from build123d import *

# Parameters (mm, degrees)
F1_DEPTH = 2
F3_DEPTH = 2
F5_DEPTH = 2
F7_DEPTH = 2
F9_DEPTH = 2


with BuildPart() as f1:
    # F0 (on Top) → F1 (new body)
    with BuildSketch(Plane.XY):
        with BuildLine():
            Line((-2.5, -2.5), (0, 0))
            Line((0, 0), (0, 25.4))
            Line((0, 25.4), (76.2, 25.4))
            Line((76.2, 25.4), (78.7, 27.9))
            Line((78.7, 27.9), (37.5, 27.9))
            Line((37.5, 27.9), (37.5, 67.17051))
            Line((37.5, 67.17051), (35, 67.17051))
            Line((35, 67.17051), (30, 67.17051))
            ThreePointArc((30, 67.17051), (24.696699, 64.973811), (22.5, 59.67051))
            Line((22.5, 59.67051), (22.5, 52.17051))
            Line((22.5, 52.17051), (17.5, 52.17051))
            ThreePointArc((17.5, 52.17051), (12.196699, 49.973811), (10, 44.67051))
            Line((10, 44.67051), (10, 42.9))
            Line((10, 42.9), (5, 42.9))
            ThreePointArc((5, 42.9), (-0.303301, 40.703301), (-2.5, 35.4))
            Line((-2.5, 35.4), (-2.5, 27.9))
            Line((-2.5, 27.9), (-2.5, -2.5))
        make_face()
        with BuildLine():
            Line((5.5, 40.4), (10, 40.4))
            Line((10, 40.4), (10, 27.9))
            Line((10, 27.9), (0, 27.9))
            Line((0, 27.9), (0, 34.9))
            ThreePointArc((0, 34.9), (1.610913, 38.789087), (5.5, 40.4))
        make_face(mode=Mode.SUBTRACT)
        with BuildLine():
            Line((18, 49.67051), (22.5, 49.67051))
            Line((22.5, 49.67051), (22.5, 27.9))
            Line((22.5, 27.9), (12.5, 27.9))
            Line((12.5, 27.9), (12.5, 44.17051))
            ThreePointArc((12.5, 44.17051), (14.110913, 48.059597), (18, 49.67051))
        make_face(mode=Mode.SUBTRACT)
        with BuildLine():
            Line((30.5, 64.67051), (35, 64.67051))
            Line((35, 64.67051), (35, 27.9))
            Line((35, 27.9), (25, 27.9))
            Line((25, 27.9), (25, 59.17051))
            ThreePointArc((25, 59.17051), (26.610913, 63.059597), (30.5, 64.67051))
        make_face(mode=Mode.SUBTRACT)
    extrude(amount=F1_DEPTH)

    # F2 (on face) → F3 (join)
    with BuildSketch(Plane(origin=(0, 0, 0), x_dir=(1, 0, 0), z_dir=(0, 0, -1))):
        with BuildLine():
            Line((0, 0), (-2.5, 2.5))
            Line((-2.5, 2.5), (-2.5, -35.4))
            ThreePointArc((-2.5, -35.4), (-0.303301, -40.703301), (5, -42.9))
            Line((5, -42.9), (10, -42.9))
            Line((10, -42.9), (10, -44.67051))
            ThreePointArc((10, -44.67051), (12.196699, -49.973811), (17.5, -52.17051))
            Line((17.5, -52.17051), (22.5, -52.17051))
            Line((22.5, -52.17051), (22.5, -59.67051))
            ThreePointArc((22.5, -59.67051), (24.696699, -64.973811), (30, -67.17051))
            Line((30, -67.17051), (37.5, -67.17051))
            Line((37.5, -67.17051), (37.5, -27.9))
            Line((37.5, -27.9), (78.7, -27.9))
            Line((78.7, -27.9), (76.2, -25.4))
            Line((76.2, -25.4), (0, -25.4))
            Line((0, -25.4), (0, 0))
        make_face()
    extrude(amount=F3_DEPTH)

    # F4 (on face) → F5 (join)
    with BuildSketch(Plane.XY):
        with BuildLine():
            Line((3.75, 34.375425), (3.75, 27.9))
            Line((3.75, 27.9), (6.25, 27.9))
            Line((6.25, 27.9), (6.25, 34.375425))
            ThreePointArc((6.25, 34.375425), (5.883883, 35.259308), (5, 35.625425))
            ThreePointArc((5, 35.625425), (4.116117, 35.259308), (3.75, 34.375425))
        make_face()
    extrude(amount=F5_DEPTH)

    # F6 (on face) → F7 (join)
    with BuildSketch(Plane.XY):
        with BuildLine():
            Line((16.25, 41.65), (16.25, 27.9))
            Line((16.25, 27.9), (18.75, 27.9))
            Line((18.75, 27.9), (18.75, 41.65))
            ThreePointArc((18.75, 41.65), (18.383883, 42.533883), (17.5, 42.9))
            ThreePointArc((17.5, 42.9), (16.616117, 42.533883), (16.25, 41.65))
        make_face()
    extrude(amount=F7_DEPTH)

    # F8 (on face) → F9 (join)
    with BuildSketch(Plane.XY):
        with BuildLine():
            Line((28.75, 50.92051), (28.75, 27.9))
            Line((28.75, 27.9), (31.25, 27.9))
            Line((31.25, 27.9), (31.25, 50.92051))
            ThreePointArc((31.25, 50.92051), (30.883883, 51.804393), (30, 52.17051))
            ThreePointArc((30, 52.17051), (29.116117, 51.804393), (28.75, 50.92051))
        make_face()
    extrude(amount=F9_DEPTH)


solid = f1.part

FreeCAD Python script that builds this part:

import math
import FreeCAD as App
import Part
import Sketcher
from FreeCAD import Vector
Q = App.Units.Quantity

doc = App.newDocument("Part")
body = doc.addObject("PartDesign::Body", "Body")

# Sketch on XY plane
sketch1 = doc.addObject("Sketcher::SketchObject", "Sketch")
body.addObject(sketch1)
sketch1.AttachmentSupport = (doc.XY_Plane, [""])
sketch1.MapMode = "FlatFace"
sketch1.addGeometry(Part.LineSegment(Vector(-2.5, -2.5, 0), Vector(0, 0, 0)), False)
sketch1.addGeometry(Part.LineSegment(Vector(0, 0, 0), Vector(0, 25.4, 0)), False)
sketch1.addGeometry(Part.LineSegment(Vector(0, 25.4, 0), Vector(76.2, 25.4, 0)), False)
sketch1.addGeometry(Part.LineSegment(Vector(76.2, 25.4, 0), Vector(78.7, 27.9, 0)), False)
sketch1.addGeometry(Part.LineSegment(Vector(78.7, 27.9, 0), Vector(37.5, 27.9, 0)), False)
sketch1.addGeometry(Part.LineSegment(Vector(37.5, 27.9, 0), Vector(37.5, 67.2, 0)), False)
sketch1.addGeometry(Part.LineSegment(Vector(37.5, 67.2, 0), Vector(30, 67.2, 0)), False)
sketch1.addGeometry(Part.ArcOfCircle(Part.Circle(Vector(30, 59.7, 0), Vector(0, 0, 1), 7.5), math.radians(90), math.radians(180)), False)
sketch1.addGeometry(Part.LineSegment(Vector(22.5, 59.7, 0), Vector(22.5, 52.2, 0)), False)
sketch1.addGeometry(Part.LineSegment(Vector(22.5, 52.2, 0), Vector(17.5, 52.2, 0)), False)
sketch1.addGeometry(Part.ArcOfCircle(Part.Circle(Vector(17.5, 44.7, 0), Vector(0, 0, 1), 7.5), math.radians(90), math.radians(180)), False)
sketch1.addGeometry(Part.LineSegment(Vector(10, 44.7, 0), Vector(10, 42.9, 0)), False)
sketch1.addGeometry(Part.LineSegment(Vector(10, 42.9, 0), Vector(5, 42.9, 0)), False)
sketch1.addGeometry(Part.ArcOfCircle(Part.Circle(Vector(5, 35.4, 0), Vector(0, 0, 1), 7.5), math.radians(90), math.radians(180)), False)
sketch1.addGeometry(Part.LineSegment(Vector(-2.5, 35.4, 0), Vector(-2.5, -2.5, 0)), False)
sketch1.addGeometry(Part.ArcOfCircle(Part.Circle(Vector(5.5, 34.9, 0), Vector(0, 0, 1), 5.5), math.radians(90), math.radians(180)), False)
sketch1.addGeometry(Part.LineSegment(Vector(5.5, 40.4, 0), Vector(10, 40.4, 0)), False)
sketch1.addGeometry(Part.LineSegment(Vector(10, 40.4, 0), Vector(10, 27.9, 0)), False)
sketch1.addGeometry(Part.LineSegment(Vector(10, 27.9, 0), Vector(0, 27.9, 0)), False)
sketch1.addGeometry(Part.LineSegment(Vector(0, 27.9, 0), Vector(0, 34.9, 0)), False)
sketch1.addGeometry(Part.ArcOfCircle(Part.Circle(Vector(18, 44.2, 0), Vector(0, 0, 1), 5.5), math.radians(90), math.radians(180)), False)
sketch1.addGeometry(Part.LineSegment(Vector(18, 49.7, 0), Vector(22.5, 49.7, 0)), False)
sketch1.addGeometry(Part.LineSegment(Vector(22.5, 49.7, 0), Vector(22.5, 27.9, 0)), False)
sketch1.addGeometry(Part.LineSegment(Vector(22.5, 27.9, 0), Vector(12.5, 27.9, 0)), False)
sketch1.addGeometry(Part.LineSegment(Vector(12.5, 27.9, 0), Vector(12.5, 44.2, 0)), False)
sketch1.addGeometry(Part.ArcOfCircle(Part.Circle(Vector(30.5, 59.2, 0), Vector(0, 0, 1), 5.5), math.radians(90), math.radians(180)), False)
sketch1.addGeometry(Part.LineSegment(Vector(30.5, 64.7, 0), Vector(35, 64.7, 0)), False)
sketch1.addGeometry(Part.LineSegment(Vector(35, 64.7, 0), Vector(35, 27.9, 0)), False)
sketch1.addGeometry(Part.LineSegment(Vector(35, 27.9, 0), Vector(25, 27.9, 0)), False)
sketch1.addGeometry(Part.LineSegment(Vector(25, 27.9, 0), Vector(25, 59.2, 0)), False)
sketch1.addConstraint(Sketcher.Constraint("Coincident", 0, 2, 1, 1))
sketch1.addConstraint(Sketcher.Constraint("Coincident", 1, 2, 2, 1))
sketch1.addConstraint(Sketcher.Constraint("Coincident", 2, 2, 3, 1))
sketch1.addConstraint(Sketcher.Constraint("Coincident", 3, 2, 4, 1))
sketch1.addConstraint(Sketcher.Constraint("Coincident", 4, 2, 5, 1))
sketch1.addConstraint(Sketcher.Constraint("Coincident", 5, 2, 6, 1))
sketch1.addConstraint(Sketcher.Constraint("Tangent", 6, 2, 7, 1))
sketch1.addConstraint(Sketcher.Constraint("Tangent", 7, 2, 8, 1))
sketch1.addConstraint(Sketcher.Constraint("Coincident", 8, 2, 9, 1))
sketch1.addConstraint(Sketcher.Constraint("Tangent", 9, 2, 10, 1))
sketch1.addConstraint(Sketcher.Constraint("Tangent", 10, 2, 11, 1))
sketch1.addConstraint(Sketcher.Constraint("Coincident", 11, 2, 12, 1))
sketch1.addConstraint(Sketcher.Constraint("Tangent", 12, 2, 13, 1))
sketch1.addConstraint(Sketcher.Constraint("Tangent", 13, 2, 14, 1))
sketch1.addConstraint(Sketcher.Constraint("Coincident", 14, 2, 0, 1))
sketch1.addConstraint(Sketcher.Constraint("Tangent", 15, 1, 16, 1))
sketch1.addConstraint(Sketcher.Constraint("Coincident", 16, 2, 17, 1))
sketch1.addConstraint(Sketcher.Constraint("Coincident", 17, 2, 18, 1))
sketch1.addConstraint(Sketcher.Constraint("Coincident", 18, 2, 19, 1))
sketch1.addConstraint(Sketcher.Constraint("Tangent", 19, 2, 15, 2))
sketch1.addConstraint(Sketcher.Constraint("Tangent", 20, 1, 21, 1))
sketch1.addConstraint(Sketcher.Constraint("Coincident", 21, 2, 22, 1))
sketch1.addConstraint(Sketcher.Constraint("Coincident", 22, 2, 23, 1))
sketch1.addConstraint(Sketcher.Constraint("Coincident", 23, 2, 24, 1))
sketch1.addConstraint(Sketcher.Constraint("Tangent", 24, 2, 20, 2))
sketch1.addConstraint(Sketcher.Constraint("Tangent", 25, 1, 26, 1))
sketch1.addConstraint(Sketcher.Constraint("Coincident", 26, 2, 27, 1))
sketch1.addConstraint(Sketcher.Constraint("Coincident", 27, 2, 28, 1))
sketch1.addConstraint(Sketcher.Constraint("Coincident", 28, 2, 29, 1))
sketch1.addConstraint(Sketcher.Constraint("Tangent", 29, 2, 25, 2))
sketch1.addConstraint(Sketcher.Constraint("Vertical", 1))
sketch1.addConstraint(Sketcher.Constraint("Horizontal", 2))
sketch1.addConstraint(Sketcher.Constraint("Horizontal", 4))
sketch1.addConstraint(Sketcher.Constraint("Vertical", 5))
sketch1.addConstraint(Sketcher.Constraint("Horizontal", 6))
sketch1.addConstraint(Sketcher.Constraint("Vertical", 8))
sketch1.addConstraint(Sketcher.Constraint("Horizontal", 9))
sketch1.addConstraint(Sketcher.Constraint("Vertical", 11))
sketch1.addConstraint(Sketcher.Constraint("Horizontal", 12))
sketch1.addConstraint(Sketcher.Constraint("Vertical", 14))
sketch1.addConstraint(Sketcher.Constraint("Horizontal", 16))
sketch1.addConstraint(Sketcher.Constraint("Vertical", 17))
sketch1.addConstraint(Sketcher.Constraint("Horizontal", 18))
sketch1.addConstraint(Sketcher.Constraint("Vertical", 19))
sketch1.addConstraint(Sketcher.Constraint("Horizontal", 21))
sketch1.addConstraint(Sketcher.Constraint("Vertical", 22))
sketch1.addConstraint(Sketcher.Constraint("Horizontal", 23))
sketch1.addConstraint(Sketcher.Constraint("Vertical", 24))
sketch1.addConstraint(Sketcher.Constraint("Horizontal", 26))
sketch1.addConstraint(Sketcher.Constraint("Vertical", 27))
sketch1.addConstraint(Sketcher.Constraint("Horizontal", 28))
sketch1.addConstraint(Sketcher.Constraint("Vertical", 29))
sketch1.addConstraint(Sketcher.Constraint("Coincident", 0, 2, -1, 1))
sketch1.addConstraint(Sketcher.Constraint("Equal", 7, 10))
sketch1.addConstraint(Sketcher.Constraint("Equal", 10, 13))
sketch1.addConstraint(Sketcher.Constraint("Equal", 15, 20))
sketch1.addConstraint(Sketcher.Constraint("Equal", 20, 25))
sketch1.addConstraint(Sketcher.Constraint("PointOnObject", 18, 2, -2))
sketch1.addConstraint(Sketcher.Constraint("Parallel", 0, 3))
sketch1.addConstraint(Sketcher.Constraint("Horizontal", 4, 2, 17, 2))
sketch1.addConstraint(Sketcher.Constraint("Horizontal", 18, 2, 22, 2))
sketch1.addConstraint(Sketcher.Constraint("Horizontal", 23, 2, 27, 2))
sketch1.addConstraint(Sketcher.Constraint("Vertical", 11, 2, 16, 2))
sketch1.addConstraint(Sketcher.Constraint("Vertical", 8, 2, 21, 2))
sketch1.addConstraint(Sketcher.Constraint("Equal", 9, 12))
sketch1.addConstraint(Sketcher.Constraint("Equal", 16, 21))
sketch1.addConstraint(Sketcher.Constraint("Equal", 21, 26))
sketch1.addConstraint(Sketcher.Constraint("Equal", 6, 8))
sketch1.addConstraint(Sketcher.Constraint("Equal", 0, 3))
sketch1.addConstraint(Sketcher.Constraint("Radius", 7, 7.5))
sketch1.addConstraint(Sketcher.Constraint("Radius", 15, 5.500001))
sketch1.addConstraint(Sketcher.Constraint("DistanceX", 9, 2, 9, 1, 5.0))
sketch1.addConstraint(Sketcher.Constraint("DistanceX", 18, 2, 18, 1, 10.0))
sketch1.addConstraint(Sketcher.Constraint("DistanceY", 19, 1, 19, 2, 7.0))
sketch1.addConstraint(Sketcher.Constraint("Angle", 0, Q("45 deg")))
sketch1.addConstraint(Sketcher.Constraint("DistanceX", 2, 1, 2, 2, 76.2))
sketch1.addConstraint(Sketcher.Constraint("DistanceX", 4, 2, 4, 1, 41.2))
sketch1.addConstraint(Sketcher.Constraint("DistanceY", 1, 1, 1, 2, 25.4))
sketch1.addConstraint(Sketcher.Constraint("DistanceY", 14, 2, 14, 1, 37.9))
sketch1.addConstraint(Sketcher.Constraint("DistanceX", -1, 1, 26, 2, 35.0))
sketch1.addConstraint(Sketcher.Constraint("DistanceY", 20, 3, 25, 3, 15.0))
sketch1.addConstraint(Sketcher.Constraint("DistanceY", 25, 3, 5, 2, 8.000001))
sketch1.addConstraint(Sketcher.Constraint("DistanceY", 5, 1, 5, 2, 39.27051))
pad1 = doc.addObject("PartDesign::Pad", "Pad")
body.addObject(pad1)
pad1.Profile = sketch1
pad1.Length = 2

# Sketch on XY plane
sketch2 = doc.addObject("Sketcher::SketchObject", "Sketch001")
body.addObject(sketch2)
sketch2.AttachmentSupport = (doc.XY_Plane, [""])
sketch2.MapMode = "FlatFace"
sketch2.addGeometry(Part.LineSegment(Vector(0, 0, 0), Vector(-2.5, -2.5, 0)), False)
sketch2.addGeometry(Part.LineSegment(Vector(-2.5, -2.5, 0), Vector(-2.5, 35.4, 0)), False)
sketch2.addGeometry(Part.ArcOfCircle(Part.Circle(Vector(5, 35.4, 0), Vector(0, 0, 1), 7.5), math.radians(90), math.radians(180)), False)
sketch2.addGeometry(Part.LineSegment(Vector(5, 42.9, 0), Vector(10, 42.9, 0)), False)
sketch2.addGeometry(Part.LineSegment(Vector(10, 42.9, 0), Vector(10, 44.7, 0)), False)
sketch2.addGeometry(Part.ArcOfCircle(Part.Circle(Vector(17.5, 44.7, 0), Vector(0, 0, 1), 7.5), math.radians(90), math.radians(180)), False)
sketch2.addGeometry(Part.LineSegment(Vector(17.5, 52.2, 0), Vector(22.5, 52.2, 0)), False)
sketch2.addGeometry(Part.LineSegment(Vector(22.5, 52.2, 0), Vector(22.5, 59.7, 0)), False)
sketch2.addGeometry(Part.ArcOfCircle(Part.Circle(Vector(30, 59.7, 0), Vector(0, 0, 1), 7.5), math.radians(90), math.radians(180)), False)
sketch2.addGeometry(Part.LineSegment(Vector(30, 67.2, 0), Vector(37.5, 67.2, 0)), False)
sketch2.addGeometry(Part.LineSegment(Vector(37.5, 67.2, 0), Vector(37.5, 27.9, 0)), False)
sketch2.addGeometry(Part.LineSegment(Vector(37.5, 27.9, 0), Vector(78.7, 27.9, 0)), False)
sketch2.addGeometry(Part.LineSegment(Vector(78.7, 27.9, 0), Vector(76.2, 25.4, 0)), False)
sketch2.addGeometry(Part.LineSegment(Vector(76.2, 25.4, 0), Vector(0, 25.4, 0)), False)
sketch2.addGeometry(Part.LineSegment(Vector(0, 25.4, 0), Vector(0, 0, 0)), False)
sketch2.addConstraint(Sketcher.Constraint("Coincident", 0, 2, 1, 1))
sketch2.addConstraint(Sketcher.Constraint("Tangent", 1, 2, 2, 2))
sketch2.addConstraint(Sketcher.Constraint("Tangent", 2, 1, 3, 1))
sketch2.addConstraint(Sketcher.Constraint("Coincident", 3, 2, 4, 1))
sketch2.addConstraint(Sketcher.Constraint("Tangent", 4, 2, 5, 2))
sketch2.addConstraint(Sketcher.Constraint("Tangent", 5, 1, 6, 1))
sketch2.addConstraint(Sketcher.Constraint("Coincident", 6, 2, 7, 1))
sketch2.addConstraint(Sketcher.Constraint("Tangent", 7, 2, 8, 2))
sketch2.addConstraint(Sketcher.Constraint("Tangent", 8, 1, 9, 1))
sketch2.addConstraint(Sketcher.Constraint("Coincident", 9, 2, 10, 1))
sketch2.addConstraint(Sketcher.Constraint("Coincident", 10, 2, 11, 1))
sketch2.addConstraint(Sketcher.Constraint("Coincident", 11, 2, 12, 1))
sketch2.addConstraint(Sketcher.Constraint("Coincident", 12, 2, 13, 1))
sketch2.addConstraint(Sketcher.Constraint("Coincident", 13, 2, 14, 1))
sketch2.addConstraint(Sketcher.Constraint("Coincident", 14, 2, 0, 1))
sketch2.addConstraint(Sketcher.Constraint("Vertical", 1))
sketch2.addConstraint(Sketcher.Constraint("Horizontal", 3))
sketch2.addConstraint(Sketcher.Constraint("Vertical", 4))
sketch2.addConstraint(Sketcher.Constraint("Horizontal", 6))
sketch2.addConstraint(Sketcher.Constraint("Vertical", 7))
sketch2.addConstraint(Sketcher.Constraint("Horizontal", 9))
sketch2.addConstraint(Sketcher.Constraint("Vertical", 10))
sketch2.addConstraint(Sketcher.Constraint("Horizontal", 11))
sketch2.addConstraint(Sketcher.Constraint("Horizontal", 13))
sketch2.addConstraint(Sketcher.Constraint("Vertical", 14))
sketch2.addConstraint(Sketcher.Constraint("Coincident", 14, 2, -1, 1))
sketch2.addConstraint(Sketcher.Constraint("Equal", 2, 5))
sketch2.addConstraint(Sketcher.Constraint("Equal", 5, 8))
sketch2.addConstraint(Sketcher.Constraint("Parallel", 0, 12))
sketch2.addConstraint(Sketcher.Constraint("Equal", 3, 6))
sketch2.addConstraint(Sketcher.Constraint("Equal", 9, 7))
sketch2.addConstraint(Sketcher.Constraint("Equal", 0, 12))
sketch2.addConstraint(Sketcher.Constraint("Radius", 2, 7.5))
sketch2.addConstraint(Sketcher.Constraint("DistanceX", 3, 1, 3, 2, 5.0))
sketch2.addConstraint(Sketcher.Constraint("Angle", 0, Q("-135 deg")))
sketch2.addConstraint(Sketcher.Constraint("DistanceX", 9, 1, 9, 2, 7.5))
sketch2.addConstraint(Sketcher.Constraint("DistanceX", 11, 1, 11, 2, 41.2))
sketch2.addConstraint(Sketcher.Constraint("DistanceX", 13, 2, 13, 1, 76.2))
sketch2.addConstraint(Sketcher.Constraint("DistanceY", 1, 1, 1, 2, 37.9))
sketch2.addConstraint(Sketcher.Constraint("DistanceY", 14, 2, 14, 1, 25.4))
sketch2.addConstraint(Sketcher.Constraint("DistanceY", 4, 1, 4, 2, 1.77051))
pad2 = doc.addObject("PartDesign::Pad", "Pad001")
body.addObject(pad2)
pad2.Profile = sketch2
pad2.Length = 2
pad2.Reversed = True

# Sketch on XY plane
sketch3 = doc.addObject("Sketcher::SketchObject", "Sketch002")
body.addObject(sketch3)
sketch3.AttachmentSupport = (doc.XY_Plane, [""])
sketch3.MapMode = "FlatFace"
sketch3.addGeometry(Part.LineSegment(Vector(3.8, 34.4, 0), Vector(3.8, 27.9, 0)), False)
sketch3.addGeometry(Part.LineSegment(Vector(3.8, 27.9, 0), Vector(6.2, 27.9, 0)), False)
sketch3.addGeometry(Part.LineSegment(Vector(6.2, 27.9, 0), Vector(6.2, 34.4, 0)), False)
sketch3.addGeometry(Part.ArcOfCircle(Part.Circle(Vector(5, 34.4, 0), Vector(0, 0, 1), 1.3), math.radians(0), math.radians(90)), False)
sketch3.addGeometry(Part.ArcOfCircle(Part.Circle(Vector(5, 34.4, 0), Vector(0, 0, 1), 1.3), math.radians(90), math.radians(180)), False)
sketch3.addConstraint(Sketcher.Constraint("Coincident", 0, 2, 1, 1))
sketch3.addConstraint(Sketcher.Constraint("Coincident", 1, 2, 2, 1))
sketch3.addConstraint(Sketcher.Constraint("Tangent", 2, 2, 3, 1))
sketch3.addConstraint(Sketcher.Constraint("Coincident", 3, 2, 4, 1))
sketch3.addConstraint(Sketcher.Constraint("Tangent", 4, 2, 0, 1))
sketch3.addConstraint(Sketcher.Constraint("Vertical", 0))
sketch3.addConstraint(Sketcher.Constraint("Horizontal", 1))
sketch3.addConstraint(Sketcher.Constraint("Vertical", 2))
sketch3.addConstraint(Sketcher.Constraint("Coincident", 4, 3, 3, 3))
sketch3.addConstraint(Sketcher.Constraint("Vertical", 4, 3, 3, 2))
sketch3.addConstraint(Sketcher.Constraint("Radius", 3, 1.250002))
sketch3.addConstraint(Sketcher.Constraint("DistanceX", -1, 1, 3, 3, 4.999998))
sketch3.addConstraint(Sketcher.Constraint("DistanceY", -1, 1, 0, 2, 27.9))
sketch3.addConstraint(Sketcher.Constraint("DistanceY", 0, 2, 0, 1, 6.475425))
pad3 = doc.addObject("PartDesign::Pad", "Pad002")
body.addObject(pad3)
pad3.Profile = sketch3
pad3.Length = 2

# Sketch on XY plane
sketch4 = doc.addObject("Sketcher::SketchObject", "Sketch003")
body.addObject(sketch4)
sketch4.AttachmentSupport = (doc.XY_Plane, [""])
sketch4.MapMode = "FlatFace"
sketch4.addGeometry(Part.LineSegment(Vector(16.2, 41.6, 0), Vector(16.2, 27.9, 0)), False)
sketch4.addGeometry(Part.LineSegment(Vector(16.2, 27.9, 0), Vector(18.8, 27.9, 0)), False)
sketch4.addGeometry(Part.LineSegment(Vector(18.8, 27.9, 0), Vector(18.8, 41.6, 0)), False)
sketch4.addGeometry(Part.ArcOfCircle(Part.Circle(Vector(17.5, 41.6, 0), Vector(0, 0, 1), 1.3), math.radians(0), math.radians(90)), False)
sketch4.addGeometry(Part.ArcOfCircle(Part.Circle(Vector(17.5, 41.6, 0), Vector(0, 0, 1), 1.3), math.radians(90), math.radians(180)), False)
sketch4.addConstraint(Sketcher.Constraint("Coincident", 0, 2, 1, 1))
sketch4.addConstraint(Sketcher.Constraint("Coincident", 1, 2, 2, 1))
sketch4.addConstraint(Sketcher.Constraint("Tangent", 2, 2, 3, 1))
sketch4.addConstraint(Sketcher.Constraint("Coincident", 3, 2, 4, 1))
sketch4.addConstraint(Sketcher.Constraint("Tangent", 4, 2, 0, 1))
sketch4.addConstraint(Sketcher.Constraint("Vertical", 0))
sketch4.addConstraint(Sketcher.Constraint("Horizontal", 1))
sketch4.addConstraint(Sketcher.Constraint("Vertical", 2))
sketch4.addConstraint(Sketcher.Constraint("Coincident", 4, 3, 3, 3))
sketch4.addConstraint(Sketcher.Constraint("Vertical", 4, 3, 3, 2))
sketch4.addConstraint(Sketcher.Constraint("Radius", 3, 1.250002))
sketch4.addConstraint(Sketcher.Constraint("DistanceY", 0, 2, 3, 2, 15.0))
sketch4.addConstraint(Sketcher.Constraint("DistanceX", -1, 1, 3, 3, 17.499998))
sketch4.addConstraint(Sketcher.Constraint("DistanceY", -1, 1, 0, 2, 27.9))
pad4 = doc.addObject("PartDesign::Pad", "Pad003")
body.addObject(pad4)
pad4.Profile = sketch4
pad4.Length = 2

# Sketch on XY plane
sketch5 = doc.addObject("Sketcher::SketchObject", "Sketch004")
body.addObject(sketch5)
sketch5.AttachmentSupport = (doc.XY_Plane, [""])
sketch5.MapMode = "FlatFace"
sketch5.addGeometry(Part.LineSegment(Vector(28.8, 50.9, 0), Vector(28.8, 27.9, 0)), False)
sketch5.addGeometry(Part.LineSegment(Vector(28.8, 27.9, 0), Vector(31.2, 27.9, 0)), False)
sketch5.addGeometry(Part.LineSegment(Vector(31.2, 27.9, 0), Vector(31.2, 50.9, 0)), False)
sketch5.addGeometry(Part.ArcOfCircle(Part.Circle(Vector(30, 50.9, 0), Vector(0, 0, 1), 1.3), math.radians(0), math.radians(90)), False)
sketch5.addGeometry(Part.ArcOfCircle(Part.Circle(Vector(30, 50.9, 0), Vector(0, 0, 1), 1.3), math.radians(90), math.radians(180)), False)
sketch5.addConstraint(Sketcher.Constraint("Coincident", 0, 2, 1, 1))
sketch5.addConstraint(Sketcher.Constraint("Coincident", 1, 2, 2, 1))
sketch5.addConstraint(Sketcher.Constraint("Tangent", 2, 2, 3, 1))
sketch5.addConstraint(Sketcher.Constraint("Coincident", 3, 2, 4, 1))
sketch5.addConstraint(Sketcher.Constraint("Tangent", 4, 2, 0, 1))
sketch5.addConstraint(Sketcher.Constraint("Vertical", 0))
sketch5.addConstraint(Sketcher.Constraint("Horizontal", 1))
sketch5.addConstraint(Sketcher.Constraint("Vertical", 2))
sketch5.addConstraint(Sketcher.Constraint("Coincident", 4, 3, 3, 3))
sketch5.addConstraint(Sketcher.Constraint("Vertical", 4, 3, 3, 2))
sketch5.addConstraint(Sketcher.Constraint("Radius", 3, 1.250002))
sketch5.addConstraint(Sketcher.Constraint("DistanceX", -1, 1, 3, 3, 29.999998))
sketch5.addConstraint(Sketcher.Constraint("DistanceY", -1, 1, 0, 2, 27.9))
sketch5.addConstraint(Sketcher.Constraint("DistanceY", 0, 2, 0, 1, 23.02051))
pad5 = doc.addObject("PartDesign::Pad", "Pad004")
body.addObject(pad5)
pad5.Profile = sketch5
pad5.Length = 2

doc.recompute()
